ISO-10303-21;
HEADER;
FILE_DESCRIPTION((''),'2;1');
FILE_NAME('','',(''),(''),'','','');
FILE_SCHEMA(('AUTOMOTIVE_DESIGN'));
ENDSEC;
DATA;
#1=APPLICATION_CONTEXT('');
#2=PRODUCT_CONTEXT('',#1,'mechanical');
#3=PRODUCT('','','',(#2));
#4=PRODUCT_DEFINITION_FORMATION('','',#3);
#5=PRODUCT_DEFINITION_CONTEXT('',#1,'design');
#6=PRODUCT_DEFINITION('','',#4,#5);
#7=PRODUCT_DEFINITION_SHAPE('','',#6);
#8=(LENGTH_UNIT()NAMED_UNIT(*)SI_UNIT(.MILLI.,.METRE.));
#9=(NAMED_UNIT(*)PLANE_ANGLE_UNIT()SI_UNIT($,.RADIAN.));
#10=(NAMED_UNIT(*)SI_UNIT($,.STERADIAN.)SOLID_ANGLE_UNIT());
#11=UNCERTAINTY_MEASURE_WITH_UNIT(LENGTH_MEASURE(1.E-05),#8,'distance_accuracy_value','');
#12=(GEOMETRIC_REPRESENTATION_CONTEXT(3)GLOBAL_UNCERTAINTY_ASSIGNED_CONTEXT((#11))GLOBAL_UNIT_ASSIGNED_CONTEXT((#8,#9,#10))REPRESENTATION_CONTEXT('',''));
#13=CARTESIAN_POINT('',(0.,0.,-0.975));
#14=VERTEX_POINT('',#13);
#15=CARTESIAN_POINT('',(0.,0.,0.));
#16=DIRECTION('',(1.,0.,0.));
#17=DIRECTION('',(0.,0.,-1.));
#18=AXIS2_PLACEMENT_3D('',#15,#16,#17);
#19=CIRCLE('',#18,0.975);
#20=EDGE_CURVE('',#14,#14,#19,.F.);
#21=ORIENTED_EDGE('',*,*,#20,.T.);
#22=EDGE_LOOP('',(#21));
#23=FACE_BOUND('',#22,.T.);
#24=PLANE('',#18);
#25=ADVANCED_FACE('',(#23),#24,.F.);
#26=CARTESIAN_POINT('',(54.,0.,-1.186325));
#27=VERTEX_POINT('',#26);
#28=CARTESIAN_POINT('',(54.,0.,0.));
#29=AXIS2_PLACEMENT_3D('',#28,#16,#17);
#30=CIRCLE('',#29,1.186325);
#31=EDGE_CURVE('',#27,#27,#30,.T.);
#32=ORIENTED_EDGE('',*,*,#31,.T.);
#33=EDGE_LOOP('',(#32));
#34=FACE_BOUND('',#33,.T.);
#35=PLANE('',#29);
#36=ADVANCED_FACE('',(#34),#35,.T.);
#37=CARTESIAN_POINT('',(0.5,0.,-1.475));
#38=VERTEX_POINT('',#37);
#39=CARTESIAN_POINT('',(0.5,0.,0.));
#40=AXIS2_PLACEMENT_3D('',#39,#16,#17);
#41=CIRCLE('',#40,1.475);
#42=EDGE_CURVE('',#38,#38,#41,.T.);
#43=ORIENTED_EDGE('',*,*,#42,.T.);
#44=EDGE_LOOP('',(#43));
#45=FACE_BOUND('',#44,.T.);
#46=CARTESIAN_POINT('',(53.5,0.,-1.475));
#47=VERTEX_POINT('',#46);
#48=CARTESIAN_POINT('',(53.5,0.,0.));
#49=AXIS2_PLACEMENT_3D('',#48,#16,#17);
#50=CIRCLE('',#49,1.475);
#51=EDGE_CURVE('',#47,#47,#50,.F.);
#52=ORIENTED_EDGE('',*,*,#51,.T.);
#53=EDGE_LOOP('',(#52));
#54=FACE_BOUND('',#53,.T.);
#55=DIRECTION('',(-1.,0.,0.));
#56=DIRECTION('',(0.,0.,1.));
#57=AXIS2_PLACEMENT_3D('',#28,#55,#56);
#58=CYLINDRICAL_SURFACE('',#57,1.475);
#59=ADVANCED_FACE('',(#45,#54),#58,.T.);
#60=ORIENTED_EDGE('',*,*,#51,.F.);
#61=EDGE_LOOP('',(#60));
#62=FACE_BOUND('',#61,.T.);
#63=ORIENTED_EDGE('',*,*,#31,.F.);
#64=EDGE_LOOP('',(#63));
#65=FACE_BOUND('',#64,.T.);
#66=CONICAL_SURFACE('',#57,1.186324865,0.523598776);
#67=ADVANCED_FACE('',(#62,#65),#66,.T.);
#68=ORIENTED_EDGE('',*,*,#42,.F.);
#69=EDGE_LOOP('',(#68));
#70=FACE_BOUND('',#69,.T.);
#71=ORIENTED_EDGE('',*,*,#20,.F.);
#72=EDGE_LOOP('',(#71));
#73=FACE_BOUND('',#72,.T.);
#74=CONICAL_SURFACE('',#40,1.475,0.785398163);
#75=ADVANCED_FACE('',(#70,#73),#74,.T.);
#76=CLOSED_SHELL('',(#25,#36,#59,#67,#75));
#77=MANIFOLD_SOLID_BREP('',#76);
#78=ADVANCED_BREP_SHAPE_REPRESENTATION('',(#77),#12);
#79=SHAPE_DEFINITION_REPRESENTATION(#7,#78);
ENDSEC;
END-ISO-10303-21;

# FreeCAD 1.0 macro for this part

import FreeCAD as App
import Part
import Sketcher
from FreeCAD import Vector


def edges_at(feature, points):
    """Names of the edges that pass closest to the given points."""
    edges = feature.Shape.Edges
    near = lambda p: min(range(len(edges)), key=lambda i: edges[i].distToShape(Part.Vertex(*p))[0])
    return sorted({f"Edge{near(p) + 1}" for p in points})

doc = App.newDocument("Part")
body = doc.addObject("PartDesign::Body", "Body")

sketch1 = body.newObject("Sketcher::SketchObject", "Sketch")
sketch1.AttachmentSupport = (doc.getObject("YZ_Plane"), [""])
sketch1.MapMode = "FlatFace"
sketch1.addGeometry(Part.Circle(Vector(0, 0, 0), Vector(0, 0, 1), 1.475), False)
sketch1.addConstraint([
    Sketcher.Constraint("Coincident", 0, 3, -1, 1),
    Sketcher.Constraint("Diameter", 0, 2.95),
])
pad1 = body.newObject("PartDesign::Pad", "Pad")
pad1.Profile = sketch1
pad1.Length = 54
doc.recompute()

chamfer = body.newObject("PartDesign::Chamfer", "Chamfer")
chamfer.Base = (pad1, edges_at(pad1, [(54, 0, 1.475)]))
chamfer.ChamferType = "Two distances"
chamfer.Size = 0.5
chamfer.Size2 = 0.288675
doc.recompute()

chamfer2 = body.newObject("PartDesign::Chamfer", "Chamfer001")
chamfer2.Base = (chamfer, edges_at(chamfer, [(0, 0, 1.475)]))
chamfer2.Size = 0.5

doc.recompute()
